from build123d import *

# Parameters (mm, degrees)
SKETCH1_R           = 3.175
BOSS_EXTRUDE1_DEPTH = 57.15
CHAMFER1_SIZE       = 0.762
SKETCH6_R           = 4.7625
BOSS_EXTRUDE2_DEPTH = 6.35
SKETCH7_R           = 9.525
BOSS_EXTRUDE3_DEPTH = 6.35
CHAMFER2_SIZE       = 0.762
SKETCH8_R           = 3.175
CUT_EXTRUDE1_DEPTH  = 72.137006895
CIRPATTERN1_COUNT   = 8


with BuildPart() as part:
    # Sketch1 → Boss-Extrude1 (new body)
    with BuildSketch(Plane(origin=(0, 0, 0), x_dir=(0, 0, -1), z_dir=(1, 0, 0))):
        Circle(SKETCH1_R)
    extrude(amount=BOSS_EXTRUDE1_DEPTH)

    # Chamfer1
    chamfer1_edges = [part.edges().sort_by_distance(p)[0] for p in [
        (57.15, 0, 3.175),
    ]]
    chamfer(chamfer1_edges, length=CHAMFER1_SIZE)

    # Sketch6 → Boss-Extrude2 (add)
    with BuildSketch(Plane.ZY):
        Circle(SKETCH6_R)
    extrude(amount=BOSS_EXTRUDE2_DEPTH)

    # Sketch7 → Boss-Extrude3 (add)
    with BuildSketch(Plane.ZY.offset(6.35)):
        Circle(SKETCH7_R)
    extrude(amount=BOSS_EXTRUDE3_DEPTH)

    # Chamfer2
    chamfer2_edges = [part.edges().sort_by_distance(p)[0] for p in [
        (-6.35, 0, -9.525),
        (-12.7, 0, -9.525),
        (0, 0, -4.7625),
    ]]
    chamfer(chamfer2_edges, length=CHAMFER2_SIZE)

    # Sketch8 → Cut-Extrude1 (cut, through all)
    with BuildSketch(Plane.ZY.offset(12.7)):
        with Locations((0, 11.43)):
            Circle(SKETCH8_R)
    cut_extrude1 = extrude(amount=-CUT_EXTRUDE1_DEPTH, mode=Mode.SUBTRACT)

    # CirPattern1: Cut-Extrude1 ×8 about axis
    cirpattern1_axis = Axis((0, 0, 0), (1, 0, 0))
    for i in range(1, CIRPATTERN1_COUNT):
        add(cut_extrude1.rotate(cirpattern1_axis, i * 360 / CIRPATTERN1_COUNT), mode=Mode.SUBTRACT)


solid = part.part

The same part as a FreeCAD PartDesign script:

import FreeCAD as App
import Part
import Sketcher

V = App.Vector
Q = App.Units.Quantity


def edges_at(feature, points):
    """Names of the edges that pass closest to the given points."""
    edges = feature.Shape.Edges
    near = lambda p: min(range(len(edges)), key=lambda i: edges[i].distToShape(Part.Vertex(*p))[0])
    return sorted({f"Edge{near(p) + 1}" for p in points})

doc = App.newDocument("Part")
body = doc.addObject("PartDesign::Body", "Body")

sketch1 = doc.addObject("Sketcher::SketchObject", "Sketch")
body.addObject(sketch1)
sketch1.AttachmentSupport = (doc.YZ_Plane, [""])
sketch1.MapMode = "FlatFace"
sketch1.addGeometry(Part.Circle(V(0, 0, 0), V(0, 0, 1), 3.2), False)
sketch1.addConstraint([
    Sketcher.Constraint("Coincident", 0, 3, -1, 1),
    Sketcher.Constraint("Diameter", 0, Q("0.25 in")),
])
pad1 = doc.addObject("PartDesign::Pad", "Pad")
body.addObject(pad1)
pad1.Profile = sketch1
pad1.Length = Q("2.25 in")
doc.recompute()

chamfer = doc.addObject("PartDesign::Chamfer", "Chamfer")
body.addObject(chamfer)
chamfer.Base = (pad1, edges_at(pad1, [(57.15, 0, 3.175)]))
chamfer.Size = Q("0.03 in")

sketch2 = doc.addObject("Sketcher::SketchObject", "Sketch001")
body.addObject(sketch2)
sketch2.AttachmentSupport = (doc.YZ_Plane, [""])
sketch2.MapMode = "FlatFace"
sketch2.addGeometry(Part.Circle(V(0, 0, 0), V(0, 0, 1), 4.8), False)
sketch2.addConstraint([
    Sketcher.Constraint("Coincident", 0, 3, -1, 1),
    Sketcher.Constraint("Diameter", 0, Q("0.375 in")),
])
pad2 = doc.addObject("PartDesign::Pad", "Pad001")
body.addObject(pad2)
pad2.Profile = sketch2
pad2.Length = Q("0.25 in")
pad2.Reversed = True

sketch3 = doc.addObject("Sketcher::SketchObject", "Sketch002")
body.addObject(sketch3)
sketch3.AttachmentSupport = (doc.YZ_Plane, [""])
sketch3.MapMode = "FlatFace"
sketch3.AttachmentOffset = App.Placement(V(0, 0, -0.25 * 25.4), App.Rotation())
sketch3.addGeometry(Part.Circle(V(0, 0, 0), V(0, 0, 1), 10), False)
sketch3.addConstraint([
    Sketcher.Constraint("Coincident", 0, 3, -1, 1),
    Sketcher.Constraint("Diameter", 0, Q("0.75 in")),
])
pad3 = doc.addObject("PartDesign::Pad", "Pad002")
body.addObject(pad3)
pad3.Profile = sketch3
pad3.Length = Q("0.25 in")
pad3.Reversed = True
doc.recompute()

chamfer2 = doc.addObject("PartDesign::Chamfer", "Chamfer001")
body.addObject(chamfer2)
chamfer2.Base = (pad3, edges_at(pad3, [(-6.35, 0, -9.525), (-12.7, 0, -9.525), (0, 0, -4.763)]))
chamfer2.Size = Q("0.03 in")

sketch4 = doc.addObject("Sketcher::SketchObject", "Sketch003")
body.addObject(sketch4)
sketch4.AttachmentSupport = (doc.YZ_Plane, [""])
sketch4.MapMode = "FlatFace"
sketch4.AttachmentOffset = App.Placement(V(0, 0, -0.5 * 25.4), App.Rotation())
sketch4.addGeometry(Part.Circle(V(11.4, 0, 0), V(0, 0, 1), 3.2), False)
sketch4.addConstraint([
    Sketcher.Constraint("PointOnObject", 0, 3, -1),
    Sketcher.Constraint("Diameter", 0, Q("0.25 in")),
    Sketcher.Constraint("DistanceX", -1, 1, 0, 3, Q("0.45 in")),
])
pocket1 = doc.addObject("PartDesign::Pocket", "Pocket")
body.addObject(pocket1)
pocket1.Profile = sketch4
pocket1.Type = "ThroughAll"
pocket1.Reversed = True
doc.recompute()

polarpattern = doc.addObject("PartDesign::PolarPattern", "PolarPattern")
body.addObject(polarpattern)
polarpattern.Originals = [pocket1]
polarpattern.Axis = (doc.X_Axis, [""])
polarpattern.Angle = 360
polarpattern.Occurrences = 8
body.Tip = polarpattern

doc.recompute()
